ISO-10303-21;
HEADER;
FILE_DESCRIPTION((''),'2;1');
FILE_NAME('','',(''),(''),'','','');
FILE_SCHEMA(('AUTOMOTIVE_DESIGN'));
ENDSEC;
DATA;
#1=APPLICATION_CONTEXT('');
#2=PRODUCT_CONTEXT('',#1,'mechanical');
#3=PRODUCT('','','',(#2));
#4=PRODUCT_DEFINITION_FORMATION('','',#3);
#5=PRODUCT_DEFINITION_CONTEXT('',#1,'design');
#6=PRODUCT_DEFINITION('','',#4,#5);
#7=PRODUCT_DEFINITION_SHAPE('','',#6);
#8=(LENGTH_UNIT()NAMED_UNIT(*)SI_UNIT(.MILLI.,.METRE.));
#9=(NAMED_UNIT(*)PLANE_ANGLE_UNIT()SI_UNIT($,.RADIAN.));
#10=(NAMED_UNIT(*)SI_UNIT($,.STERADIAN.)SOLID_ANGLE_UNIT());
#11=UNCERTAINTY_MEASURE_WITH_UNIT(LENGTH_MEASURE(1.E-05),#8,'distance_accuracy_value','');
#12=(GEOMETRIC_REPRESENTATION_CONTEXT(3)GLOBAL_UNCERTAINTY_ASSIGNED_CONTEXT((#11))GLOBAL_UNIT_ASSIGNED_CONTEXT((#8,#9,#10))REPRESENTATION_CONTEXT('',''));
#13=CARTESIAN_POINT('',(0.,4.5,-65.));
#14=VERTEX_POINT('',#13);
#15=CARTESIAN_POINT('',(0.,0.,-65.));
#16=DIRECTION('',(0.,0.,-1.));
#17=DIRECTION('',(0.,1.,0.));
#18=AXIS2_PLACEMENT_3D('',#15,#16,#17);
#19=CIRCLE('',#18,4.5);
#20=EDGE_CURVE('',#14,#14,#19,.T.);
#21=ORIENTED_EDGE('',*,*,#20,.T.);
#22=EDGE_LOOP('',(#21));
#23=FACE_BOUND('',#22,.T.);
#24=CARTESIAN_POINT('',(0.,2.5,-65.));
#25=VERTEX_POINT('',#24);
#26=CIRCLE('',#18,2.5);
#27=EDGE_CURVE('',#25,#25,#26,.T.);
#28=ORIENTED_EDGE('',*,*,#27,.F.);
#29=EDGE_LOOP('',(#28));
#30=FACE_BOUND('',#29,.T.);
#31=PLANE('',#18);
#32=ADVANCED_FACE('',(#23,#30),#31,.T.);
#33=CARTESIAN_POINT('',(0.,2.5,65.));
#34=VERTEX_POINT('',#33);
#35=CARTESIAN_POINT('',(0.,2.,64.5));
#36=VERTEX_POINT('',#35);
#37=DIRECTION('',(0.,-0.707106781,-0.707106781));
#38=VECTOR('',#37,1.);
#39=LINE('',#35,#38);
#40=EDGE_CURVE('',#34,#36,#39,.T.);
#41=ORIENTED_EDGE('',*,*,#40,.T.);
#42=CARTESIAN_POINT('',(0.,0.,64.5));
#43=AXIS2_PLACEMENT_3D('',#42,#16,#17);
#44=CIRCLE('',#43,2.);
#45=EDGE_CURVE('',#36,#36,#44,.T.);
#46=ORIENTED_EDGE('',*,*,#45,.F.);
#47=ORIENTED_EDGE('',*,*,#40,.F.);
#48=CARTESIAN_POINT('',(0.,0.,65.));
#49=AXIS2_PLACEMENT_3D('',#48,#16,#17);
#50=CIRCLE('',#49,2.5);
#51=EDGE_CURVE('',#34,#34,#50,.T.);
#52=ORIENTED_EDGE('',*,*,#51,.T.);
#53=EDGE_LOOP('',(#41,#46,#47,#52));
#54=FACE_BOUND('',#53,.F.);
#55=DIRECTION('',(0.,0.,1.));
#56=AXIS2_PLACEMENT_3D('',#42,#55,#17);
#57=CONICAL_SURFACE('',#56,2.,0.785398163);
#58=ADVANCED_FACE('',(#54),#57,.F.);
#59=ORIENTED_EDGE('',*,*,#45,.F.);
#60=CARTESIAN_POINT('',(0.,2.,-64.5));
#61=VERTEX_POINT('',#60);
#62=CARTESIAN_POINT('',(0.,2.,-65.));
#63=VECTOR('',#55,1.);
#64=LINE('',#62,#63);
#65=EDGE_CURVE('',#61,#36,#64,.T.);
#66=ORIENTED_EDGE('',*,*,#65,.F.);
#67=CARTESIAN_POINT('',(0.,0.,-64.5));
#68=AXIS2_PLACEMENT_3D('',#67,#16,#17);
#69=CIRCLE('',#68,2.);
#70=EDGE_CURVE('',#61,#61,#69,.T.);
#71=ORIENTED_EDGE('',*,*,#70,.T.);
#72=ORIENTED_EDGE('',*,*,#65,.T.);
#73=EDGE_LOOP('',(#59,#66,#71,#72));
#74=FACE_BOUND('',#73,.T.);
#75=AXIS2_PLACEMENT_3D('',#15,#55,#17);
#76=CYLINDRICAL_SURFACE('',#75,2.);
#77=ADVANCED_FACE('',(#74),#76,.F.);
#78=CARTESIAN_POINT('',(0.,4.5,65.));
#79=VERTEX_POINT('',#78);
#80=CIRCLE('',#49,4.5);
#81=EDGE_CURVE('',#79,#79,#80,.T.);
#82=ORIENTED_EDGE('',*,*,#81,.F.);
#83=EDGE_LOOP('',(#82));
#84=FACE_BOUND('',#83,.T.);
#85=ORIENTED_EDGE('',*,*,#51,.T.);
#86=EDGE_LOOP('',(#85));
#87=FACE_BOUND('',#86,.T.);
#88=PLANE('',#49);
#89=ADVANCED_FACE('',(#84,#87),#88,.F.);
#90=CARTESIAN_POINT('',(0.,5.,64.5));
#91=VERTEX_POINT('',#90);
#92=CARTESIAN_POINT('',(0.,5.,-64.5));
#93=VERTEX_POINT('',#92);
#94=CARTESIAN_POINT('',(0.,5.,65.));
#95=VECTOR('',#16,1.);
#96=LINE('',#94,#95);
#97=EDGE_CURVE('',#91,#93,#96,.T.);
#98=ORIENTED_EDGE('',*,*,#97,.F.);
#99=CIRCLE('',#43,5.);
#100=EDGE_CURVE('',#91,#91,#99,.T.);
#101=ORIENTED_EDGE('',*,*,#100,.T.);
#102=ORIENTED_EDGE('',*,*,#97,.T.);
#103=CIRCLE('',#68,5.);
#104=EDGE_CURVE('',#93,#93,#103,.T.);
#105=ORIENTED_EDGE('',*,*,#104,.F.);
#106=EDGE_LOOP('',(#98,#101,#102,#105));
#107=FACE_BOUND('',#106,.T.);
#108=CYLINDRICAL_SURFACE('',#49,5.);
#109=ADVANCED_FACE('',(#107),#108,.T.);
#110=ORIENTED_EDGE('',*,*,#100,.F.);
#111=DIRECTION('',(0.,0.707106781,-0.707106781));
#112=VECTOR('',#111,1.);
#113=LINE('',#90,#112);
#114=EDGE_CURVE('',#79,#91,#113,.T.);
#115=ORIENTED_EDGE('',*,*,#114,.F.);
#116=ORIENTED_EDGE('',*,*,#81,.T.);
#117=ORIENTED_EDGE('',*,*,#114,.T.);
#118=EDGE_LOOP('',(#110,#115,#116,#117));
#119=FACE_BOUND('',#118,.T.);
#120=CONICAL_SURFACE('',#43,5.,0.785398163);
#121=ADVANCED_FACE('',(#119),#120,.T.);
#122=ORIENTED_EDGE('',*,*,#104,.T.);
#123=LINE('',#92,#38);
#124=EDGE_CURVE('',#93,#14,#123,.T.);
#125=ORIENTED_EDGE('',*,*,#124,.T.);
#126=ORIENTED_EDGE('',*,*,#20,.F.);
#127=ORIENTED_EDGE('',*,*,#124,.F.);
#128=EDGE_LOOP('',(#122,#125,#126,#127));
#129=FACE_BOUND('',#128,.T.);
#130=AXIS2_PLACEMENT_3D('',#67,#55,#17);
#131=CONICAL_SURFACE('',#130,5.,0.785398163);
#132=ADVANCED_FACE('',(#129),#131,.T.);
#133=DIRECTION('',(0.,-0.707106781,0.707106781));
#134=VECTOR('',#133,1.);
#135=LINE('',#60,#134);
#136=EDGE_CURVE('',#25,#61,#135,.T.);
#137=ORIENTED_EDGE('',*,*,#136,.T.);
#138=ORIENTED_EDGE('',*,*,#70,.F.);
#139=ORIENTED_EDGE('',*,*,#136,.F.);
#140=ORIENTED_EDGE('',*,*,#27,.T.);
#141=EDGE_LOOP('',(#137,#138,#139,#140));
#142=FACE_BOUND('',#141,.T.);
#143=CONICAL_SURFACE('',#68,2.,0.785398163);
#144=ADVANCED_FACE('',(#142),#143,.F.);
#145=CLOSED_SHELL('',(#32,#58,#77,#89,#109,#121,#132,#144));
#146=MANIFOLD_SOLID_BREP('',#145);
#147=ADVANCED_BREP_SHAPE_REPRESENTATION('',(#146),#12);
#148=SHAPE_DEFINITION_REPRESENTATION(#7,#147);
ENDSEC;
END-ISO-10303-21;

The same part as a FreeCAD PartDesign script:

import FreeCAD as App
import Part
import Sketcher

V = App.Vector


def edges_at(feature, points):
    """Names of the edges that pass closest to the given points."""
    edges = feature.Shape.Edges
    near = lambda p: min(range(len(edges)), key=lambda i: edges[i].distToShape(Part.Vertex(*p))[0])
    return sorted({f"Edge{near(p) + 1}" for p in points})


def add_polygon(sketch, points):
    """Adds a closed chain of lines whose ends are joined by coincident constraints."""
    first, n = sketch.GeometryCount, len(points)
    for a, b in zip(points, points[1:] + points[:1]):
        sketch.addGeometry(Part.LineSegment(App.Vector(*a, 0), App.Vector(*b, 0)), False)
    for i in range(n):
        sketch.addConstraint(Sketcher.Constraint("Coincident", first + i, 2, first + (i + 1) % n, 1))

doc = App.newDocument("Part")
body = doc.addObject("PartDesign::Body", "Body")

# Sketch on YZ plane
sketch1 = body.newObject("Sketcher::SketchObject", "Sketch")
sketch1.AttachmentSupport = (doc.getObject("YZ_Plane"), [""])
sketch1.MapMode = "FlatFace"
add_polygon(sketch1, [(5, 65), (2, 65), (2, -65), (5, -65)])  # lines 0-3
sketch1.addConstraint([
    Sketcher.Constraint("Horizontal", 0),
    Sketcher.Constraint("Vertical", 1),
    Sketcher.Constraint("Horizontal", 2),
    Sketcher.Constraint("Vertical", 3),
    Sketcher.Constraint("DistanceX", 0, 2, 0, 1, 3.0),
    Sketcher.Constraint("DistanceY", 1, 2, 1, 1, 130.0),
    Sketcher.Constraint("DistanceX", -1, 1, 0, 2, 2.0),
    Sketcher.Constraint("DistanceY", -1, 1, 0, 2, 65.0),
])
revolution = body.newObject("PartDesign::Revolution", "Revolution")
revolution.Profile = sketch1
revolution.ReferenceAxis = (sketch1, ["V_Axis"])
revolution.Angle = 360
doc.recompute()

chamfer = body.newObject("PartDesign::Chamfer", "Chamfer")
chamfer.Base = (revolution, edges_at(revolution, [
    (0, -2, 65),
    (0, -5, 65),
    (0, -2, -65),
    (0, -5, -65),
]))
chamfer.Size = 0.5

doc.recompute()
